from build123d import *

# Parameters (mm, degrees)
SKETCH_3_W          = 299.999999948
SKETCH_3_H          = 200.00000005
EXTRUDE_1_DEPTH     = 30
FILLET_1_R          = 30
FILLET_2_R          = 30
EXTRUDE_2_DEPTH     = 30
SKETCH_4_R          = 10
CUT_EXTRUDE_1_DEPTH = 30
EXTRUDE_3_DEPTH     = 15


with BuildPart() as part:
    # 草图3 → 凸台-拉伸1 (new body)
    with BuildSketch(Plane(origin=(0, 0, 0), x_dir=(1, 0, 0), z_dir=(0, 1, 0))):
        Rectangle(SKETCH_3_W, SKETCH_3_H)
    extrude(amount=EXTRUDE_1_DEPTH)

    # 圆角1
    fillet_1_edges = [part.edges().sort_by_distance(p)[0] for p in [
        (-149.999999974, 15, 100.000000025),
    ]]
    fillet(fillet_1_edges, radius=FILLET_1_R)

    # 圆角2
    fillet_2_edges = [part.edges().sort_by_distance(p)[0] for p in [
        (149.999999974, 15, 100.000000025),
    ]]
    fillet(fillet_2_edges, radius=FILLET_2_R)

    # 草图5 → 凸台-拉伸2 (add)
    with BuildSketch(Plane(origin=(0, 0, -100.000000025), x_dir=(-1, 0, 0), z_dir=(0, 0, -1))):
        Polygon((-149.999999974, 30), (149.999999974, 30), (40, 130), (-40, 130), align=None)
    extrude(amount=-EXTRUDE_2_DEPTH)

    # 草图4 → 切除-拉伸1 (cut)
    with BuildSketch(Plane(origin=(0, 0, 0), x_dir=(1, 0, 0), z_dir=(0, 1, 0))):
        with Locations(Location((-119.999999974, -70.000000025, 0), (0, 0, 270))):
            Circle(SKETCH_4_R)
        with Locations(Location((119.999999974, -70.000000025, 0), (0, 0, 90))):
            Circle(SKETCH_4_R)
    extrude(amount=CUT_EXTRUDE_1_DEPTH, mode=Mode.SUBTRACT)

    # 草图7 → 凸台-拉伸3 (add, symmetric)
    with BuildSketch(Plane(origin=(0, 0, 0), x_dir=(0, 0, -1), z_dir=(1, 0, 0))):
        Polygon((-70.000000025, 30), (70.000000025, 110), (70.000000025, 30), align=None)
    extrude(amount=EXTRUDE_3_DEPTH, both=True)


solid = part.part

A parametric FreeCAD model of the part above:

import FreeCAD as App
import Part
import Sketcher
from FreeCAD import Vector


def edges_at(feature, points):
    """Names of the edges that pass closest to the given points."""
    edges = feature.Shape.Edges
    near = lambda p: min(range(len(edges)), key=lambda i: edges[i].distToShape(Part.Vertex(*p))[0])
    return sorted({f"Edge{near(p) + 1}" for p in points})

doc = App.newDocument("Part")
body = doc.addObject("PartDesign::Body", "Body")

sketch1 = doc.addObject("Sketcher::SketchObject", "Sketch")
body.addObject(sketch1)
sketch1.AttachmentSupport = (doc.XZ_Plane, [""])
sketch1.MapMode = "FlatFace"
sketch1.addGeometry([
    Part.LineSegment(Vector(-150, -100, 0), Vector(-150, 100, 0)),
    Part.LineSegment(Vector(-150, 100, 0), Vector(150, 100, 0)),
    Part.LineSegment(Vector(150, 100, 0), Vector(150, -100, 0)),
    Part.LineSegment(Vector(150, -100, 0), Vector(-150, -100, 0)),
], False)
sketch1.addConstraint([
    Sketcher.Constraint("Coincident", 0, 2, 1, 1),
    Sketcher.Constraint("Coincident", 1, 2, 2, 1),
    Sketcher.Constraint("Coincident", 2, 2, 3, 1),
    Sketcher.Constraint("Coincident", 3, 2, 0, 1),
    Sketcher.Constraint("Vertical", 0),
    Sketcher.Constraint("Horizontal", 1),
    Sketcher.Constraint("Vertical", 2),
    Sketcher.Constraint("Horizontal", 3),
    Sketcher.Constraint("Symmetric", 0, 2, 2, 2, -1, 1),
    Sketcher.Constraint("DistanceX", 1, 1, 1, 2, 300.0),
    Sketcher.Constraint("DistanceY", 0, 1, 0, 2, 200.0),
])
pad1 = doc.addObject("PartDesign::Pad", "Pad")
body.addObject(pad1)
pad1.Profile = sketch1
pad1.Length = 30
pad1.Reversed = True
doc.recompute()

fillet = doc.addObject("PartDesign::Fillet", "Fillet")
body.addObject(fillet)
fillet.Base = (pad1, edges_at(pad1, [(-150, 15, 100)]))
fillet.Radius = 30
doc.recompute()

fillet2 = doc.addObject("PartDesign::Fillet", "Fillet001")
body.addObject(fillet2)
fillet2.Base = (fillet, edges_at(fillet, [(150, 15, 100)]))
fillet2.Radius = 30

sketch2 = doc.addObject("Sketcher::SketchObject", "Sketch001")
body.addObject(sketch2)
sketch2.AttachmentSupport = (doc.XY_Plane, [""])
sketch2.MapMode = "FlatFace"
sketch2.AttachmentOffset = App.Placement(Vector(0, 0, -100), App.Rotation())
sketch2.addGeometry([
    Part.LineSegment(Vector(150, 30, 0), Vector(-150, 30, 0)),
    Part.LineSegment(Vector(-150, 30, 0), Vector(-40, 130, 0)),
    Part.LineSegment(Vector(-40, 130, 0), Vector(40, 130, 0)),
    Part.LineSegment(Vector(40, 130, 0), Vector(150, 30, 0)),
], False)
sketch2.addConstraint([
    Sketcher.Constraint("Coincident", 0, 2, 1, 1),
    Sketcher.Constraint("Coincident", 1, 2, 2, 1),
    Sketcher.Constraint("Coincident", 2, 2, 3, 1),
    Sketcher.Constraint("Coincident", 3, 2, 0, 1),
    Sketcher.Constraint("Horizontal", 0),
    Sketcher.Constraint("Horizontal", 2),
    Sketcher.Constraint("Equal", 1, 3),
    Sketcher.Constraint("DistanceX", 0, 2, 0, 1, 300.0),
    Sketcher.Constraint("DistanceX", 2, 1, 2, 2, 80.0),
    Sketcher.Constraint("DistanceX", 0, 2, -1, 1, 150.0),
    Sketcher.Constraint("DistanceY", -1, 1, 0, 2, 30.0),
    Sketcher.Constraint("DistanceY", -1, 1, 1, 2, 130.0),
])
pad2 = doc.addObject("PartDesign::Pad", "Pad001")
body.addObject(pad2)
pad2.Profile = sketch2
pad2.Length = 30

sketch3 = doc.addObject("Sketcher::SketchObject", "Sketch002")
body.addObject(sketch3)
sketch3.AttachmentSupport = (doc.XZ_Plane, [""])
sketch3.MapMode = "FlatFace"
sketch3.addGeometry([
    Part.Circle(Vector(-120, 70, 0), Vector(0, 0, 1), 10),
    Part.Circle(Vector(120, 70, 0), Vector(0, 0, 1), 10),
], False)
sketch3.addConstraint([
    Sketcher.Constraint("Equal", 0, 1),
    Sketcher.Constraint("Symmetric", 0, 3, 1, 3, -2),
    Sketcher.Constraint("Diameter", 0, 20.0),
    Sketcher.Constraint("DistanceX", 0, 3, -1, 1, 120.0),
    Sketcher.Constraint("DistanceY", -1, 1, 0, 3, 70.0),
])
pocket1 = doc.addObject("PartDesign::Pocket", "Pocket")
body.addObject(pocket1)
pocket1.Profile = sketch3
pocket1.Length = 30

sketch4 = doc.addObject("Sketcher::SketchObject", "Sketch003")
body.addObject(sketch4)
sketch4.AttachmentSupport = (doc.YZ_Plane, [""])
sketch4.MapMode = "FlatFace"
sketch4.addGeometry([
    Part.LineSegment(Vector(110, -70, 0), Vector(30, 70, 0)),
    Part.LineSegment(Vector(30, 70, 0), Vector(30, -70, 0)),
    Part.LineSegment(Vector(30, -70, 0), Vector(110, -70, 0)),
], False)
sketch4.addConstraint([
    Sketcher.Constraint("Coincident", 0, 2, 1, 1),
    Sketcher.Constraint("Coincident", 1, 2, 2, 1),
    Sketcher.Constraint("Coincident", 2, 2, 0, 1),
    Sketcher.Constraint("Vertical", 1),
    Sketcher.Constraint("Horizontal", 2),
    Sketcher.Constraint("DistanceX", 2, 1, 2, 2, 80.0),
    Sketcher.Constraint("DistanceY", 1, 2, 1, 1, 140.0),
    Sketcher.Constraint("DistanceX", -1, 1, 0, 2, 30.0),
    Sketcher.Constraint("DistanceY", -1, 1, 0, 2, 70.0),
])
pad3 = doc.addObject("PartDesign::Pad", "Pad002")
body.addObject(pad3)
pad3.Profile = sketch4
pad3.Length = 30
pad3.Midplane = True

doc.recompute()
